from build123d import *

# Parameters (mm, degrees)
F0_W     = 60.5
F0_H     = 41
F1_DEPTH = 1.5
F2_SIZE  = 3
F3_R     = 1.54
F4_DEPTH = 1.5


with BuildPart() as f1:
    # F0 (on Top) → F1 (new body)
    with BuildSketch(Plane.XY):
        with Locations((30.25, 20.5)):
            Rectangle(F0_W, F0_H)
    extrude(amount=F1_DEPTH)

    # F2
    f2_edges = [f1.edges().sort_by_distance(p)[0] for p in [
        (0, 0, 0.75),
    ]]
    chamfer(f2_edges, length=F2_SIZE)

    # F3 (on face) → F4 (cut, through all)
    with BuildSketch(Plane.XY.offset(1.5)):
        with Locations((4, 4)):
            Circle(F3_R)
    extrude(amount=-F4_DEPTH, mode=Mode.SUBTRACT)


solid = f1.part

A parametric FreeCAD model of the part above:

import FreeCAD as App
import Part
import Sketcher
from FreeCAD import Vector
Q = App.Units.Quantity


def edges_at(feature, points):
    """Names of the edges that pass closest to the given points."""
    edges = feature.Shape.Edges
    near = lambda p: min(range(len(edges)), key=lambda i: edges[i].distToShape(Part.Vertex(*p))[0])
    return sorted({f"Edge{near(p) + 1}" for p in points})


def add_polygon(sketch, points):
    """Adds a closed chain of lines whose ends are joined by coincident constraints."""
    first, n = sketch.GeometryCount, len(points)
    for a, b in zip(points, points[1:] + points[:1]):
        sketch.addGeometry(Part.LineSegment(App.Vector(*a, 0), App.Vector(*b, 0)), False)
    for i in range(n):
        sketch.addConstraint(Sketcher.Constraint("Coincident", first + i, 2, first + (i + 1) % n, 1))

doc = App.newDocument("Part")
body = doc.addObject("PartDesign::Body", "Body")

# Sketch on XY plane
sketch1 = body.newObject("Sketcher::SketchObject", "Sketch")
sketch1.AttachmentSupport = (doc.getObject("XY_Plane"), [""])
sketch1.MapMode = "FlatFace"
add_polygon(sketch1, [(0, 41), (0, 0), (60, 0), (60, 41)])  # lines 0-3
sketch1.addConstraint([
    Sketcher.Constraint("Vertical", 0),
    Sketcher.Constraint("Horizontal", 1),
    Sketcher.Constraint("Vertical", 2),
    Sketcher.Constraint("Horizontal", 3),
    Sketcher.Constraint("Coincident", 0, 2, -1, 1),
    Sketcher.Constraint("DistanceY", 0, 2, 0, 1, Q("41 mm")),
    Sketcher.Constraint("DistanceX", 1, 1, 1, 2, Q("60.5 mm")),
])
pad1 = body.newObject("PartDesign::Pad", "Pad")
pad1.Profile = sketch1
pad1.Length = 1.5
doc.recompute()

chamfer = body.newObject("PartDesign::Chamfer", "Chamfer")
chamfer.Base = (pad1, edges_at(pad1, [(0, 0, 0.75)]))
chamfer.Size = 3

# Sketch on XY plane
sketch2 = body.newObject("Sketcher::SketchObject", "Sketch001")
sketch2.AttachmentSupport = (doc.getObject("XY_Plane"), [""])
sketch2.MapMode = "FlatFace"
sketch2.AttachmentOffset = App.Placement(Vector(0, 0, 1.5), App.Rotation())
sketch2.addGeometry(Part.Circle(Vector(4, 4, 0), Vector(0, 0, 1), 1.5), False)
sketch2.addConstraint([
    Sketcher.Constraint("Diameter", 0, Q("3.08 mm")),
    Sketcher.Constraint("DistanceX", -1, 1, 0, 3, Q("4 mm")),
    Sketcher.Constraint("DistanceY", -1, 1, 0, 3, Q("4 mm")),
])
pocket1 = body.newObject("PartDesign::Pocket", "Pocket")
pocket1.Profile = sketch2
pocket1.Type = "ThroughAll"

doc.recompute()
